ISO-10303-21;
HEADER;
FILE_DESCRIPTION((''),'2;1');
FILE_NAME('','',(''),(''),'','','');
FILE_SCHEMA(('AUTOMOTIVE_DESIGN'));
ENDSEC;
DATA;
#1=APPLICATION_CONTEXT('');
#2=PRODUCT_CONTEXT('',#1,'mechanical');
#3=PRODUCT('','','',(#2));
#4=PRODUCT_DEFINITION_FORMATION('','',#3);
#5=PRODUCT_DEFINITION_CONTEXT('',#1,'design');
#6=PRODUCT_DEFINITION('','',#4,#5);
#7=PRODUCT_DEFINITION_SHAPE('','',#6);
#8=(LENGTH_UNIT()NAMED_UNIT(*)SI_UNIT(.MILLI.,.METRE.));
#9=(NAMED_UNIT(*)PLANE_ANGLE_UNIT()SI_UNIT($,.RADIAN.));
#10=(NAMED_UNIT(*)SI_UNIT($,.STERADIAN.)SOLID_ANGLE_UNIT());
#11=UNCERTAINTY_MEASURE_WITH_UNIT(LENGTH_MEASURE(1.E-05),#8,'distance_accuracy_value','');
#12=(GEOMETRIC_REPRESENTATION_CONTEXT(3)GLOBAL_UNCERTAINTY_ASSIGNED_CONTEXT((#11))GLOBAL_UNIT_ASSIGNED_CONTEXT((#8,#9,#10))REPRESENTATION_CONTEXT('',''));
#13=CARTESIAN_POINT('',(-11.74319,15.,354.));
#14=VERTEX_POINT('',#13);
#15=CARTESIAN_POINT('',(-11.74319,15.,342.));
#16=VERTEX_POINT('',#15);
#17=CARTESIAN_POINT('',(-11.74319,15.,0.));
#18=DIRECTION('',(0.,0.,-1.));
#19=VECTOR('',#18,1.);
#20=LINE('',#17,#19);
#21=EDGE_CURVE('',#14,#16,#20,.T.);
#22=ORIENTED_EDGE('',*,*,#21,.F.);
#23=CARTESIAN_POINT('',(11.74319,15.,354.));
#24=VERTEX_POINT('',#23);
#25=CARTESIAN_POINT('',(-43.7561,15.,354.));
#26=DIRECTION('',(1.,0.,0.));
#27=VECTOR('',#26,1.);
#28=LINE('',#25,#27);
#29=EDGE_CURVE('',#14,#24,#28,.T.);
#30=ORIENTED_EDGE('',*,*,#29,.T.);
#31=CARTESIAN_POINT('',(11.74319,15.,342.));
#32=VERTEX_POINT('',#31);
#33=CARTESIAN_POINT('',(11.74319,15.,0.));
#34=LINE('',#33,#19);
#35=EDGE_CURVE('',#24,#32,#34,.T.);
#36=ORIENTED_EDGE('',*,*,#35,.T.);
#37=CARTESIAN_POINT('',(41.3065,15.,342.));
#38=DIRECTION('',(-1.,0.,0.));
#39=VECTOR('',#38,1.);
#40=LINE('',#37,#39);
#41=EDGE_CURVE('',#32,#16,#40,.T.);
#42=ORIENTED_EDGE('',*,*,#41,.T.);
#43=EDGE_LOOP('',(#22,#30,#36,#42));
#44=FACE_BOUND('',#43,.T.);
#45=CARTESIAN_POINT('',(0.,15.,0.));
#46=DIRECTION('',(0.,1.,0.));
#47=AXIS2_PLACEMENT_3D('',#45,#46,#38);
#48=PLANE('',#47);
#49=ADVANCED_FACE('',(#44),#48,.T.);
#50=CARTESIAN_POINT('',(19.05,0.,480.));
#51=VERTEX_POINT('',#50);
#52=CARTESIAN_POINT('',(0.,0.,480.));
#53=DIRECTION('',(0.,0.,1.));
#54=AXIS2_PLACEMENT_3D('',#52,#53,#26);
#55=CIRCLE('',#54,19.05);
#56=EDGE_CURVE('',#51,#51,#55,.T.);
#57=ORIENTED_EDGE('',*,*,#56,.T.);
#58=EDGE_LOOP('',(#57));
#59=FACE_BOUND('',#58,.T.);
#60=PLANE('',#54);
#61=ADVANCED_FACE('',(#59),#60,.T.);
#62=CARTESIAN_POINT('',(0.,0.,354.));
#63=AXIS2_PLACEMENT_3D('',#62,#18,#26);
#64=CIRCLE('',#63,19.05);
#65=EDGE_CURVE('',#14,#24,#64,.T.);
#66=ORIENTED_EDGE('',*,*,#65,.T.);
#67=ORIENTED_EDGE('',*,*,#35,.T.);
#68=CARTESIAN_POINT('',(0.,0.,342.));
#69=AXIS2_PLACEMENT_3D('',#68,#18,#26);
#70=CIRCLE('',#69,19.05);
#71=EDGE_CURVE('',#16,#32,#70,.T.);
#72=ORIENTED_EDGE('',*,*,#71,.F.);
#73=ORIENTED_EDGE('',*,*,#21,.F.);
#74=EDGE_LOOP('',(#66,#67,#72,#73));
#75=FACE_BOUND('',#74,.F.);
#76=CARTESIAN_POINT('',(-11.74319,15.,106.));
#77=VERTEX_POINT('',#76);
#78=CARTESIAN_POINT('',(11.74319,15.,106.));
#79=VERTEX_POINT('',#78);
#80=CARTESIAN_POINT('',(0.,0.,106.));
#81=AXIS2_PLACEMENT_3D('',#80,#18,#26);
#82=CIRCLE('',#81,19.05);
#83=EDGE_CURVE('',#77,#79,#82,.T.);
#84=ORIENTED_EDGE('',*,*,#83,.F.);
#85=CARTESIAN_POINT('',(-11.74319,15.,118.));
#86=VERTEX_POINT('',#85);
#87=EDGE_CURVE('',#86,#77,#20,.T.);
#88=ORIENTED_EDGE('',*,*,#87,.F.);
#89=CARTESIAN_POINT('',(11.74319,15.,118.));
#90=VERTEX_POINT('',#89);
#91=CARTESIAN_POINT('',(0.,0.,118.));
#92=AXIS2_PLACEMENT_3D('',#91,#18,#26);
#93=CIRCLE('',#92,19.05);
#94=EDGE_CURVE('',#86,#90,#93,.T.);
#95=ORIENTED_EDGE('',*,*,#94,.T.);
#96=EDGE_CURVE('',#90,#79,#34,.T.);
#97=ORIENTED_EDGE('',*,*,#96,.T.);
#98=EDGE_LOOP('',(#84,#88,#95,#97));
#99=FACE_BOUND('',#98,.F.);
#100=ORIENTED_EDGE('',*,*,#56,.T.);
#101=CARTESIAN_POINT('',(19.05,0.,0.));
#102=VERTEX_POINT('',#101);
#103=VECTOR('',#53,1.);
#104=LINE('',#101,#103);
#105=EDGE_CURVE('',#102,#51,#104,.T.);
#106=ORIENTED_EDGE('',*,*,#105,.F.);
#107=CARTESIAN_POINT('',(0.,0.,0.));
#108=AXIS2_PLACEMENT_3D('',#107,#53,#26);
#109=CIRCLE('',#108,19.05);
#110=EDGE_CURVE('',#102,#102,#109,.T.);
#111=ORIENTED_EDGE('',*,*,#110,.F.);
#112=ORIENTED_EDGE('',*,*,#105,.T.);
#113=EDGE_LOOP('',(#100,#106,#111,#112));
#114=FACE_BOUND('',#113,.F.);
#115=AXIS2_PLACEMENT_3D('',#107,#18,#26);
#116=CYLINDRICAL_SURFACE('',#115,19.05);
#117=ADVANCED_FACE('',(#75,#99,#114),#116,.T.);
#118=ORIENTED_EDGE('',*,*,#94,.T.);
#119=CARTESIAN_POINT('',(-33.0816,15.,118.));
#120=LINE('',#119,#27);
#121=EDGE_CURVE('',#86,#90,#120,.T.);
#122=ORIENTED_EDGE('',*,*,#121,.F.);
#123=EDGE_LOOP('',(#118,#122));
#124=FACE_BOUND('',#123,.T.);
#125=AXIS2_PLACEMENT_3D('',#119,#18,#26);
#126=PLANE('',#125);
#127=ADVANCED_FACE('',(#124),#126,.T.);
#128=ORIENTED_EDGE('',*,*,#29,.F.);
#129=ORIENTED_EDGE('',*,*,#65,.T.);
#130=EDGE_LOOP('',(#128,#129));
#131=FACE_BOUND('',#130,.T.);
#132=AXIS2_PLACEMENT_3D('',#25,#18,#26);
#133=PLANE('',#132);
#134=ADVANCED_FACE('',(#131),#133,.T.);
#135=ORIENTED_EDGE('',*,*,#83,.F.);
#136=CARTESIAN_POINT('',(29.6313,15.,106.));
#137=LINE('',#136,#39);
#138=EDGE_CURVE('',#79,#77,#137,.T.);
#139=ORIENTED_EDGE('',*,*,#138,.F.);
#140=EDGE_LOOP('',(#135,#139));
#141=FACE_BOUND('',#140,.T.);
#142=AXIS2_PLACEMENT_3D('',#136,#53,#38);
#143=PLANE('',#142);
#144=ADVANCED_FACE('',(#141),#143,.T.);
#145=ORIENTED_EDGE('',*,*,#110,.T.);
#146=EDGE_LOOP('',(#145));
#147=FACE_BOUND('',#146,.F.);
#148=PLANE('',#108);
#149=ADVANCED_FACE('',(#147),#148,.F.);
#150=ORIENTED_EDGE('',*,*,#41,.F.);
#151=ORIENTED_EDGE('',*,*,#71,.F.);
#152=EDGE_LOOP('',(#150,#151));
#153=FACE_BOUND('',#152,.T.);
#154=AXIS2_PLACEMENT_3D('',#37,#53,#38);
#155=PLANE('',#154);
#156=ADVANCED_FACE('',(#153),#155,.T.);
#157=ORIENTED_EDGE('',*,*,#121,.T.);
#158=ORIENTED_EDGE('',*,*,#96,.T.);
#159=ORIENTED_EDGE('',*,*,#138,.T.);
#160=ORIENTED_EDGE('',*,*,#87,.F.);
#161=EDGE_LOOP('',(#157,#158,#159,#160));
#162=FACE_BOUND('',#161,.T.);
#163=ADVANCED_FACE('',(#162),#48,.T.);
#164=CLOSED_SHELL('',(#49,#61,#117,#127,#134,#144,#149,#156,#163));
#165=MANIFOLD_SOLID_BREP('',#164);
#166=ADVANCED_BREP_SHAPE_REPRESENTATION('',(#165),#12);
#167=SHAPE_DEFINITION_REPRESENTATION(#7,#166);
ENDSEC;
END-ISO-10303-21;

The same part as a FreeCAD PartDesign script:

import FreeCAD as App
import Part
import Sketcher

V = App.Vector
Q = App.Units.Quantity


def add_polygon(sketch, points):
    """Adds a closed chain of lines whose ends are joined by coincident constraints."""
    first, n = sketch.GeometryCount, len(points)
    for a, b in zip(points, points[1:] + points[:1]):
        sketch.addGeometry(Part.LineSegment(App.Vector(*a, 0), App.Vector(*b, 0)), False)
    for i in range(n):
        sketch.addConstraint(Sketcher.Constraint("Coincident", first + i, 2, first + (i + 1) % n, 1))

doc = App.newDocument("Part")
params = doc.addObject("Spreadsheet::Sheet", "Params")
for row, (alias, value) in enumerate([
    ("sketch1_diameter", "38.1 mm"),
    ("pad1_length", "480 mm"),
    ("sketch2_height", "12 mm"),
], start=1):
    params.set(f"A{row}", alias)
    params.set(f"B{row}", "=" + value)
    params.setAlias(f"B{row}", alias)

body = doc.addObject("PartDesign::Body", "Body")

sketch1 = doc.addObject("Sketcher::SketchObject", "Sketch")
body.addObject(sketch1)
sketch1.AttachmentSupport = (doc.XY_Plane, [""])
sketch1.MapMode = "FlatFace"
sketch1.addGeometry(Part.Circle(V(0, 0, 0), V(0, 0, 1), 19.05), False)
sketch1.addConstraint([
    Sketcher.Constraint("Coincident", 0, 3, -1, 1),
    Sketcher.Constraint("Diameter", 0, Q("38.1 mm")),
])
sketch1.setExpression("Constraints[1]", "Params.sketch1_diameter")
pad1 = doc.addObject("PartDesign::Pad", "Pad")
body.addObject(pad1)
pad1.Profile = sketch1
pad1.setExpression("Length", "Params.pad1_length")

sketch2 = doc.addObject("Sketcher::SketchObject", "Sketch001")
body.addObject(sketch2)
sketch2.AttachmentSupport = (doc.XZ_Plane, [""])
sketch2.MapMode = "FlatFace"
sketch2.AttachmentOffset = App.Placement(V(0, 0, -15), App.Rotation())
add_polygon(sketch2, [(29.6313, 118), (29.6313, 106), (-33.0816, 106), (-33.0816, 118)])
add_polygon(sketch2, [(41.3065, 354), (41.3065, 342), (-43.7561, 342), (-43.7561, 354)])
sketch2.addConstraint([
    Sketcher.Constraint("Vertical", 0),
    Sketcher.Constraint("Horizontal", 1),
    Sketcher.Constraint("Vertical", 2),
    Sketcher.Constraint("Horizontal", 3),
    Sketcher.Constraint("Vertical", 4),
    Sketcher.Constraint("Horizontal", 5),
    Sketcher.Constraint("Vertical", 6),
    Sketcher.Constraint("Horizontal", 7),
    Sketcher.Constraint("Equal", 2, 4),
    Sketcher.Constraint("DistanceY", 0, 2, 0, 1, Q("12 mm")),
    Sketcher.Constraint("DistanceY", -1, 1, 0, 2, Q("106 mm")),
    Sketcher.Constraint("DistanceY", -1, 1, 4, 2, Q("342 mm")),
    Sketcher.Constraint("DistanceX", 1, 2, 1, 1, Q("62.713 mm")),
    Sketcher.Constraint("DistanceX", 5, 2, 5, 1, Q("85.0626 mm")),
    Sketcher.Constraint("DistanceX", 5, 2, -1, 1, Q("43.756 mm")),
    Sketcher.Constraint("DistanceX", 2, 2, 4, 2, Q("74.388 mm")),
])
sketch2.setExpression("Constraints[17]", "Params.sketch2_height")
pocket1 = doc.addObject("PartDesign::Pocket", "Pocket")
body.addObject(pocket1)
pocket1.Profile = sketch2
pocket1.Type = "ThroughAll"

doc.recompute()
